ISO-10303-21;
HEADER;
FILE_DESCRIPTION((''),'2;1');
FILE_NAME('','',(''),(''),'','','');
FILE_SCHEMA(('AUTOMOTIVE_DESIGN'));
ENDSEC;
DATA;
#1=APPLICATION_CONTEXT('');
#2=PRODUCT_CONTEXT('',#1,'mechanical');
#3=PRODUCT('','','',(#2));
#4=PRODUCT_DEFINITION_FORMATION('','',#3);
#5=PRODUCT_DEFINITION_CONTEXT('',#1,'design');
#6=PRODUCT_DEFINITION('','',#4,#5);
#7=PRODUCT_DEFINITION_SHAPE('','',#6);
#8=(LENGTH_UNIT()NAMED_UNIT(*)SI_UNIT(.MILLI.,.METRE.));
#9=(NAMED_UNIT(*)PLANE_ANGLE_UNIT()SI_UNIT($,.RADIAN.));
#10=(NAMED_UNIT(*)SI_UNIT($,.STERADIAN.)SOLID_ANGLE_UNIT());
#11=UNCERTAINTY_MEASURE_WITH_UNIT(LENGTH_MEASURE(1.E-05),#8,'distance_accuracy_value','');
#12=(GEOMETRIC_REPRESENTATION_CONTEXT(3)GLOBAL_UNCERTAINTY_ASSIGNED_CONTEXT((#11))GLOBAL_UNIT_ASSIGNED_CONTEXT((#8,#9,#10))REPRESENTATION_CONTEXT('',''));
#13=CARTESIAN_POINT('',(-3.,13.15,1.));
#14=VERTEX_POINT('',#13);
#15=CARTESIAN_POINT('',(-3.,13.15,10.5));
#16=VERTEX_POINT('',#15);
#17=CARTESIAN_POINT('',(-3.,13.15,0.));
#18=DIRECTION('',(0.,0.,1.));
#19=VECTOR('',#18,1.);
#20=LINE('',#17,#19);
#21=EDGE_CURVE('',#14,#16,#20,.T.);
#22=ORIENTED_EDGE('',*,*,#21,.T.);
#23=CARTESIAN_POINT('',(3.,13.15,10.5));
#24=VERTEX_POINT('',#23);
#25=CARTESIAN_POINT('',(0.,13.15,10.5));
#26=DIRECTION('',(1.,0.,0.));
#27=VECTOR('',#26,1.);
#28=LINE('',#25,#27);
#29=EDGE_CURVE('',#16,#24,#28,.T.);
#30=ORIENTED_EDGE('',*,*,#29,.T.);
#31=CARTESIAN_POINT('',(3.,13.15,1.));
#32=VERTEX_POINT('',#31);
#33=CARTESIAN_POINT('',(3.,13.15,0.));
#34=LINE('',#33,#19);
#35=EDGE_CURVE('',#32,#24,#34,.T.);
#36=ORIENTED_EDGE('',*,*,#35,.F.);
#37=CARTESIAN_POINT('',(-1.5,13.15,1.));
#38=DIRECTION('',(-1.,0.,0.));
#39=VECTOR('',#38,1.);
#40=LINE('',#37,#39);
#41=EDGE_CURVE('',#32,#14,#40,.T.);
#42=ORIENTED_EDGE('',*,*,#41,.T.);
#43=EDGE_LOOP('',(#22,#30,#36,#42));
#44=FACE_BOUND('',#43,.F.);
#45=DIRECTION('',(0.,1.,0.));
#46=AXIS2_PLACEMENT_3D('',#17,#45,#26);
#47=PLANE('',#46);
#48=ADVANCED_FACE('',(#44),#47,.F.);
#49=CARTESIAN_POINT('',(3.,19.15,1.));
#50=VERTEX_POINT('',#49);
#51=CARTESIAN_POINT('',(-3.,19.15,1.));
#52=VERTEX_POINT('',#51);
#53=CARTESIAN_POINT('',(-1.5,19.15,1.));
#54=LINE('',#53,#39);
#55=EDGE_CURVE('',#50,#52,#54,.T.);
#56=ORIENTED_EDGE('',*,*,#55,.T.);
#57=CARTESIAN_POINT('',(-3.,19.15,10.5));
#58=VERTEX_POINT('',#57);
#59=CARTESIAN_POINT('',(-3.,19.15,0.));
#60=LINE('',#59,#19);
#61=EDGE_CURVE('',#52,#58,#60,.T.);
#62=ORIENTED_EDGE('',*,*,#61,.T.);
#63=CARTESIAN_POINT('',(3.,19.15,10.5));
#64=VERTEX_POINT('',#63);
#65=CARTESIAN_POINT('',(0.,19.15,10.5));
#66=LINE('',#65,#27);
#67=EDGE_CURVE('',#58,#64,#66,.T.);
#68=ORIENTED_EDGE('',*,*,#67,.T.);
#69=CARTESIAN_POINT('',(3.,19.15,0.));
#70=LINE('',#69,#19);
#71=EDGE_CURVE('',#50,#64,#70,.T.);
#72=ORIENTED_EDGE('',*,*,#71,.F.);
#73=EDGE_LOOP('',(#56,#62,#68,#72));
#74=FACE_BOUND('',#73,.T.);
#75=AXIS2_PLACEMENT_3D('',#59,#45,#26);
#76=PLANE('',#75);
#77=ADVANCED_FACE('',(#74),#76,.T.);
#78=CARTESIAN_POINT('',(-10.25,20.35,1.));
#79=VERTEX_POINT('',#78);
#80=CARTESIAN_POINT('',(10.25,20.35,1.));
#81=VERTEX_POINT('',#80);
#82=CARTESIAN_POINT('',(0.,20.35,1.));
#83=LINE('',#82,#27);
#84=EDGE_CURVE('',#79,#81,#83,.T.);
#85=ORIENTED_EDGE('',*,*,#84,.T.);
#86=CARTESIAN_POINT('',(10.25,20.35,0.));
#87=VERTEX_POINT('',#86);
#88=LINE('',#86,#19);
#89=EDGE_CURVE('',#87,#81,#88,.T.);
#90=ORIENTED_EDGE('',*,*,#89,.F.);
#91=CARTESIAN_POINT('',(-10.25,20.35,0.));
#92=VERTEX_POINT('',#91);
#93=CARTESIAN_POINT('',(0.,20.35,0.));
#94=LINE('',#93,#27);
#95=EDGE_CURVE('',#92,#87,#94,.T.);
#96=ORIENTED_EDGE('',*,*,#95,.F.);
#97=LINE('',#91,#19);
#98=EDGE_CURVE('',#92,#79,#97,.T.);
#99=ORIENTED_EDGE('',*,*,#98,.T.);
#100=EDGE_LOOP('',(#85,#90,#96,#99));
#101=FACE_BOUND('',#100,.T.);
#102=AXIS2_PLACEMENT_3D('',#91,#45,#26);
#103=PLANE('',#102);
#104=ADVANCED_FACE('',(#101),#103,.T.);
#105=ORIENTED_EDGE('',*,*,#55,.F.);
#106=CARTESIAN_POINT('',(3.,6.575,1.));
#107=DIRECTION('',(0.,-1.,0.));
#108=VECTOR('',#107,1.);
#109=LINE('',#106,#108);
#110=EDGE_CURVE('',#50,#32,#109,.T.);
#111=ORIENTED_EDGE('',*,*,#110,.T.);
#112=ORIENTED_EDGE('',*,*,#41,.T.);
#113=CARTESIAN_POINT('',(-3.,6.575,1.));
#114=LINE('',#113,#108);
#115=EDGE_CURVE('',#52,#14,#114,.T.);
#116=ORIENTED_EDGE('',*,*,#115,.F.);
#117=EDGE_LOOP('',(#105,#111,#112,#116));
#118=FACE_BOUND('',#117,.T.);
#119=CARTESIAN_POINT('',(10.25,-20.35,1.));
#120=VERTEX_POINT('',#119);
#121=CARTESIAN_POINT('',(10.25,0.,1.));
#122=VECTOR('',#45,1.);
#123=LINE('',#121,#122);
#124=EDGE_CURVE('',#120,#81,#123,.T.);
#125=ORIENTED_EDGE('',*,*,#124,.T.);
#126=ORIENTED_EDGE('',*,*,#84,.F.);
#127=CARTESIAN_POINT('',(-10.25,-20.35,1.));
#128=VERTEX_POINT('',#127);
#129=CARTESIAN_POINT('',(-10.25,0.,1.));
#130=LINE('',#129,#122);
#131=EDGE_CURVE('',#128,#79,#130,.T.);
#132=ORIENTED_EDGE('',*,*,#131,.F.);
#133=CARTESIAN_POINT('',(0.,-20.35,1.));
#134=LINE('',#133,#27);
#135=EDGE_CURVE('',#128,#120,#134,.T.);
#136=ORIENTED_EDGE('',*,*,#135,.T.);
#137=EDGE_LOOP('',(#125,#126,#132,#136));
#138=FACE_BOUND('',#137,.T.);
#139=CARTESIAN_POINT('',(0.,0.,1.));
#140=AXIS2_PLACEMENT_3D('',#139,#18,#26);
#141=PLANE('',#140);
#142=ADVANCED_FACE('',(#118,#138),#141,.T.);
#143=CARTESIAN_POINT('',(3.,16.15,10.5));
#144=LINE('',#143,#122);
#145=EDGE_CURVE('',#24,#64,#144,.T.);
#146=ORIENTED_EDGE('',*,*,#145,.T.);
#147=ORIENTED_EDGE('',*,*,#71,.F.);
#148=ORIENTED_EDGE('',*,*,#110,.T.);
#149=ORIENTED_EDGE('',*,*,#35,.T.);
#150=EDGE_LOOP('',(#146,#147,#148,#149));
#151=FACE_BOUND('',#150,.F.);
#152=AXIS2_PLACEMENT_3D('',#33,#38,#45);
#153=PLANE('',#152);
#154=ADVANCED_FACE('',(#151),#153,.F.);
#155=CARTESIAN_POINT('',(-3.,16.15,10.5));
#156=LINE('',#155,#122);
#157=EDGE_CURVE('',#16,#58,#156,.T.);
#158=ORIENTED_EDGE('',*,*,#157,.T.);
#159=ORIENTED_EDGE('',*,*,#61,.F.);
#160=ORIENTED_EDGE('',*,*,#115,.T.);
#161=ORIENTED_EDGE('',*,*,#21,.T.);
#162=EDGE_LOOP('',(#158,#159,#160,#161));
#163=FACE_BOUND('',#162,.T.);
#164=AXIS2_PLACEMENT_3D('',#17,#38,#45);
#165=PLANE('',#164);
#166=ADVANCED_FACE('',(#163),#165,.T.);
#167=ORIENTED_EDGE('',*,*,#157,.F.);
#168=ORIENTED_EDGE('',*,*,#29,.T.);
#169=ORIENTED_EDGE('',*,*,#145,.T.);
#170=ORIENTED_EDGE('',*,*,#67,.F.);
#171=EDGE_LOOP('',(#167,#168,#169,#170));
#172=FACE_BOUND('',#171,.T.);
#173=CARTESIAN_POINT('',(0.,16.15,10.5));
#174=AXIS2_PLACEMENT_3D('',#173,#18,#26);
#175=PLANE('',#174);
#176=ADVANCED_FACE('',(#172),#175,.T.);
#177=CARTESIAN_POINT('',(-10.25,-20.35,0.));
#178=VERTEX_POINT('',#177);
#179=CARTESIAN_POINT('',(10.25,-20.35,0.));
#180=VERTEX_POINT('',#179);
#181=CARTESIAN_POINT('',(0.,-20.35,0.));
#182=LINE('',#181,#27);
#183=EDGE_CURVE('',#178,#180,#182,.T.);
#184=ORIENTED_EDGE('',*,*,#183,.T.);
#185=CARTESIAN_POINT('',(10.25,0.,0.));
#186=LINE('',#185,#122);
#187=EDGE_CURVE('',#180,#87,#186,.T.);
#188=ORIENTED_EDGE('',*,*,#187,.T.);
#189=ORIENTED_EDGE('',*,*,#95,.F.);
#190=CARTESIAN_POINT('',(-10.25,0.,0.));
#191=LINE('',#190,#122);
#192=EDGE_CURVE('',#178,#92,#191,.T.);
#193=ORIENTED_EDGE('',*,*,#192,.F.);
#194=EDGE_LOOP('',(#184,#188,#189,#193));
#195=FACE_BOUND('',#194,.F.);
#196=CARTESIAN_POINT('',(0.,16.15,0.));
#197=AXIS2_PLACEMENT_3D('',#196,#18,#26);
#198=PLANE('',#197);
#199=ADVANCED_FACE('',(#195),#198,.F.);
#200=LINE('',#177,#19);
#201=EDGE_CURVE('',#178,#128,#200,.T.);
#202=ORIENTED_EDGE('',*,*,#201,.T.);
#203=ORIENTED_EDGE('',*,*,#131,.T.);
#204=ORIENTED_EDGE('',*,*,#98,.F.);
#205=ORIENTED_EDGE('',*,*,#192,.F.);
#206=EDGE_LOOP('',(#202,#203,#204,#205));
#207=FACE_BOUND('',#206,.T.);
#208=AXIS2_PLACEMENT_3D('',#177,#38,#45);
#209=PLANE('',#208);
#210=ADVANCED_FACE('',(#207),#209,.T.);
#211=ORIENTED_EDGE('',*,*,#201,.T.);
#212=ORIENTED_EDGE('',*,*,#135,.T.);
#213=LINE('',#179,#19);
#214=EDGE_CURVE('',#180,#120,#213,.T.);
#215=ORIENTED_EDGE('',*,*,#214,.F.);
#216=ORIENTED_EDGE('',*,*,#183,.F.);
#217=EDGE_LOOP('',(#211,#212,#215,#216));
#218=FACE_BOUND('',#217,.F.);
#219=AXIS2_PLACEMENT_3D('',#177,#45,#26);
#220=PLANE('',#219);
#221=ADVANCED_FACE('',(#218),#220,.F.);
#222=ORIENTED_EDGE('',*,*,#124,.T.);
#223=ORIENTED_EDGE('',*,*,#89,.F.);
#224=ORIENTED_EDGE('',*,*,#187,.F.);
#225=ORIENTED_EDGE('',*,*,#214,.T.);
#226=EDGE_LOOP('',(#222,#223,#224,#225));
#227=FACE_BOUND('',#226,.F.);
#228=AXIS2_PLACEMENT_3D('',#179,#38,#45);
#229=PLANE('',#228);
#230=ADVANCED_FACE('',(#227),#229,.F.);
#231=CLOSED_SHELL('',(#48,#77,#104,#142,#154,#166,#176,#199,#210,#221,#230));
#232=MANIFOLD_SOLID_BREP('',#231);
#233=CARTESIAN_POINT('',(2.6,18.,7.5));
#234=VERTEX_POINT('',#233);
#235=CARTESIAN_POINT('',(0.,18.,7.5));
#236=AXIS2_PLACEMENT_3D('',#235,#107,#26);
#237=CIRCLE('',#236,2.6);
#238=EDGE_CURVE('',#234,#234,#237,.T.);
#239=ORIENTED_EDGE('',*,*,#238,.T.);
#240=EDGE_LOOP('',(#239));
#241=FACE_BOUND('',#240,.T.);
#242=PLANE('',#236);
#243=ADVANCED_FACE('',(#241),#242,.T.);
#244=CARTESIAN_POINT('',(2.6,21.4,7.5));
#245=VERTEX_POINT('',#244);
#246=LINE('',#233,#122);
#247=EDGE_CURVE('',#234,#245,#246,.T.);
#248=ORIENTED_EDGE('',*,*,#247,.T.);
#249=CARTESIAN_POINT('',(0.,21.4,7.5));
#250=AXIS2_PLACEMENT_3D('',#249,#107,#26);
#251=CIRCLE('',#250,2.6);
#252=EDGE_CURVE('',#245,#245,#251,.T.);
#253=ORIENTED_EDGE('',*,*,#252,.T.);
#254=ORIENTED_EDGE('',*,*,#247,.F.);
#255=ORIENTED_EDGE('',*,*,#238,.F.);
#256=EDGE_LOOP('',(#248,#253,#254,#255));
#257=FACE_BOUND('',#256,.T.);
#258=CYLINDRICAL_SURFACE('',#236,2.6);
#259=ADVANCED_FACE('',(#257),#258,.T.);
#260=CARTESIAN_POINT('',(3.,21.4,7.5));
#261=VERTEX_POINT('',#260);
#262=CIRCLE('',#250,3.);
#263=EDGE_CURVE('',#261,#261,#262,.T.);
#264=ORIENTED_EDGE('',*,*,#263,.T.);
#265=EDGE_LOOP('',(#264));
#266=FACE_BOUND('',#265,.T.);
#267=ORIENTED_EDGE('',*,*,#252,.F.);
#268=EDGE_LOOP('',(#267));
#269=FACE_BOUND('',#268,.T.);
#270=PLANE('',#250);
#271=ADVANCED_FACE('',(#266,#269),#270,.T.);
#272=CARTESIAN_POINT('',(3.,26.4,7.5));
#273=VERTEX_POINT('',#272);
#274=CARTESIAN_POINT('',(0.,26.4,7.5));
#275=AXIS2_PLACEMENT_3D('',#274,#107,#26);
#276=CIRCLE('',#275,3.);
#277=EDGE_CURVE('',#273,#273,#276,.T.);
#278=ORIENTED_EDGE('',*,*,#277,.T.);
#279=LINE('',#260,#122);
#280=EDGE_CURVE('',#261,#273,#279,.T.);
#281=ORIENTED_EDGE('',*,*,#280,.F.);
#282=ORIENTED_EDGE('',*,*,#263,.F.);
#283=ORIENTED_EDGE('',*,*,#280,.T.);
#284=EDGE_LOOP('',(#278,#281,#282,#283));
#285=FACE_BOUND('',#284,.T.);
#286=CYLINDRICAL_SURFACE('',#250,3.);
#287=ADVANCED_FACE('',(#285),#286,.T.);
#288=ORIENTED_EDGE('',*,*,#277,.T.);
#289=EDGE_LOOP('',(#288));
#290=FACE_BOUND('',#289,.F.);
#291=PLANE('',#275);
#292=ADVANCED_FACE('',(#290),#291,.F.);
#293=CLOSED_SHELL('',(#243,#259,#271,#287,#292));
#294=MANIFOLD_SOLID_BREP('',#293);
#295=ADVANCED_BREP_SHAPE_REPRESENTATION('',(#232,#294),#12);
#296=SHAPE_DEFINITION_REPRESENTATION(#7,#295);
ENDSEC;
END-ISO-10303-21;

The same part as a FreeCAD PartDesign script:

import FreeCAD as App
import Part
import Sketcher

doc = App.newDocument("Part")
body = doc.addObject("PartDesign::Body", "Body")

sketch1 = doc.addObject("Sketcher::SketchObject", "Sketch")
body.addObject(sketch1)
sketch1.AttachmentSupport = (doc.XY_Plane, [""])
sketch1.MapMode = "FlatFace"
sketch1.addGeometry(Part.LineSegment(App.Vector(-10, 20, 0), App.Vector(-10, -20, 0)), False)
sketch1.addGeometry(Part.LineSegment(App.Vector(-10, -20, 0), App.Vector(10, -20, 0)), False)
sketch1.addGeometry(Part.LineSegment(App.Vector(10, -20, 0), App.Vector(10, 20, 0)), False)
sketch1.addGeometry(Part.LineSegment(App.Vector(10, 20, 0), App.Vector(-10, 20, 0)), False)
sketch1.addConstraint(Sketcher.Constraint("Coincident", 0, 2, 1, 1))
sketch1.addConstraint(Sketcher.Constraint("Coincident", 1, 2, 2, 1))
sketch1.addConstraint(Sketcher.Constraint("Coincident", 2, 2, 3, 1))
sketch1.addConstraint(Sketcher.Constraint("Coincident", 3, 2, 0, 1))
sketch1.addConstraint(Sketcher.Constraint("Vertical", 0))
sketch1.addConstraint(Sketcher.Constraint("Horizontal", 1))
sketch1.addConstraint(Sketcher.Constraint("Vertical", 2))
sketch1.addConstraint(Sketcher.Constraint("Horizontal", 3))
sketch1.addConstraint(Sketcher.Constraint("Symmetric", 0, 2, 2, 2, -1, 1))
sketch1.addConstraint(Sketcher.Constraint("DistanceX", 1, 1, 1, 2, 20.5))
sketch1.addConstraint(Sketcher.Constraint("DistanceY", 0, 2, 0, 1, 40.7))
pad1 = doc.addObject("PartDesign::Pad", "Pad")
body.addObject(pad1)
pad1.Profile = sketch1
pad1.Length = 1

sketch2 = doc.addObject("Sketcher::SketchObject", "Sketch001")
body.addObject(sketch2)
sketch2.AttachmentSupport = (doc.XY_Plane, [""])
sketch2.MapMode = "FlatFace"
sketch2.addGeometry(Part.LineSegment(App.Vector(-3, 19, 0), App.Vector(-3, 13, 0)), False)
sketch2.addGeometry(Part.LineSegment(App.Vector(-3, 13, 0), App.Vector(3, 13, 0)), False)
sketch2.addGeometry(Part.LineSegment(App.Vector(3, 13, 0), App.Vector(3, 19, 0)), False)
sketch2.addGeometry(Part.LineSegment(App.Vector(3, 19, 0), App.Vector(-3, 19, 0)), False)
sketch2.addConstraint(Sketcher.Constraint("Coincident", 0, 2, 1, 1))
sketch2.addConstraint(Sketcher.Constraint("Coincident", 1, 2, 2, 1))
sketch2.addConstraint(Sketcher.Constraint("Coincident", 2, 2, 3, 1))
sketch2.addConstraint(Sketcher.Constraint("Coincident", 3, 2, 0, 1))
sketch2.addConstraint(Sketcher.Constraint("Vertical", 0))
sketch2.addConstraint(Sketcher.Constraint("Horizontal", 1))
sketch2.addConstraint(Sketcher.Constraint("Vertical", 2))
sketch2.addConstraint(Sketcher.Constraint("Horizontal", 3))
sketch2.addConstraint(Sketcher.Constraint("Equal", 3, 0))
sketch2.addConstraint(Sketcher.Constraint("DistanceX", 1, 1, 1, 2, 6.0))
sketch2.addConstraint(Sketcher.Constraint("DistanceX", 0, 2, -1, 1, 3.0))
sketch2.addConstraint(Sketcher.Constraint("DistanceY", -1, 1, 0, 2, 13.15))
pad2 = doc.addObject("PartDesign::Pad", "Pad001")
body.addObject(pad2)
pad2.Profile = sketch2
pad2.Length = 10.5
body2 = doc.addObject("PartDesign::Body", "Body001")

sketch3 = doc.addObject("Sketcher::SketchObject", "Sketch002")
body2.addObject(sketch3)
sketch3.AttachmentSupport = (doc.getObject("XZ_Plane001"), [""])
sketch3.MapMode = "FlatFace"
sketch3.AttachmentOffset = App.Placement(App.Vector(0, 0, -18), App.Rotation())
sketch3.addGeometry(Part.Circle(App.Vector(0, 7.5, 0), App.Vector(0, 0, 1), 2.6), False)
sketch3.addConstraint(Sketcher.Constraint("PointOnObject", 0, 3, -2))
sketch3.addConstraint(Sketcher.Constraint("Diameter", 0, 5.2))
sketch3.addConstraint(Sketcher.Constraint("DistanceY", -1, 1, 0, 3, 7.5))
pad3 = doc.addObject("PartDesign::Pad", "Pad002")
body2.addObject(pad3)
pad3.Profile = sketch3
pad3.Length = 3.4
pad3.Reversed = True

sketch4 = doc.addObject("Sketcher::SketchObject", "Sketch003")
body2.addObject(sketch4)
sketch4.AttachmentSupport = (doc.getObject("XZ_Plane001"), [""])
sketch4.MapMode = "FlatFace"
sketch4.AttachmentOffset = App.Placement(App.Vector(0, 0, -21.4), App.Rotation())
sketch4.addGeometry(Part.Circle(App.Vector(0, 7.5, 0), App.Vector(0, 0, 1), 3), False)
sketch4.addConstraint(Sketcher.Constraint("PointOnObject", 0, 3, -2))
sketch4.addConstraint(Sketcher.Constraint("Diameter", 0, 6.0))
sketch4.addConstraint(Sketcher.Constraint("DistanceY", -1, 1, 0, 3, 7.5))
pad4 = doc.addObject("PartDesign::Pad", "Pad003")
body2.addObject(pad4)
pad4.Profile = sketch4
pad4.Length = 5
pad4.Reversed = True

doc.recompute()
